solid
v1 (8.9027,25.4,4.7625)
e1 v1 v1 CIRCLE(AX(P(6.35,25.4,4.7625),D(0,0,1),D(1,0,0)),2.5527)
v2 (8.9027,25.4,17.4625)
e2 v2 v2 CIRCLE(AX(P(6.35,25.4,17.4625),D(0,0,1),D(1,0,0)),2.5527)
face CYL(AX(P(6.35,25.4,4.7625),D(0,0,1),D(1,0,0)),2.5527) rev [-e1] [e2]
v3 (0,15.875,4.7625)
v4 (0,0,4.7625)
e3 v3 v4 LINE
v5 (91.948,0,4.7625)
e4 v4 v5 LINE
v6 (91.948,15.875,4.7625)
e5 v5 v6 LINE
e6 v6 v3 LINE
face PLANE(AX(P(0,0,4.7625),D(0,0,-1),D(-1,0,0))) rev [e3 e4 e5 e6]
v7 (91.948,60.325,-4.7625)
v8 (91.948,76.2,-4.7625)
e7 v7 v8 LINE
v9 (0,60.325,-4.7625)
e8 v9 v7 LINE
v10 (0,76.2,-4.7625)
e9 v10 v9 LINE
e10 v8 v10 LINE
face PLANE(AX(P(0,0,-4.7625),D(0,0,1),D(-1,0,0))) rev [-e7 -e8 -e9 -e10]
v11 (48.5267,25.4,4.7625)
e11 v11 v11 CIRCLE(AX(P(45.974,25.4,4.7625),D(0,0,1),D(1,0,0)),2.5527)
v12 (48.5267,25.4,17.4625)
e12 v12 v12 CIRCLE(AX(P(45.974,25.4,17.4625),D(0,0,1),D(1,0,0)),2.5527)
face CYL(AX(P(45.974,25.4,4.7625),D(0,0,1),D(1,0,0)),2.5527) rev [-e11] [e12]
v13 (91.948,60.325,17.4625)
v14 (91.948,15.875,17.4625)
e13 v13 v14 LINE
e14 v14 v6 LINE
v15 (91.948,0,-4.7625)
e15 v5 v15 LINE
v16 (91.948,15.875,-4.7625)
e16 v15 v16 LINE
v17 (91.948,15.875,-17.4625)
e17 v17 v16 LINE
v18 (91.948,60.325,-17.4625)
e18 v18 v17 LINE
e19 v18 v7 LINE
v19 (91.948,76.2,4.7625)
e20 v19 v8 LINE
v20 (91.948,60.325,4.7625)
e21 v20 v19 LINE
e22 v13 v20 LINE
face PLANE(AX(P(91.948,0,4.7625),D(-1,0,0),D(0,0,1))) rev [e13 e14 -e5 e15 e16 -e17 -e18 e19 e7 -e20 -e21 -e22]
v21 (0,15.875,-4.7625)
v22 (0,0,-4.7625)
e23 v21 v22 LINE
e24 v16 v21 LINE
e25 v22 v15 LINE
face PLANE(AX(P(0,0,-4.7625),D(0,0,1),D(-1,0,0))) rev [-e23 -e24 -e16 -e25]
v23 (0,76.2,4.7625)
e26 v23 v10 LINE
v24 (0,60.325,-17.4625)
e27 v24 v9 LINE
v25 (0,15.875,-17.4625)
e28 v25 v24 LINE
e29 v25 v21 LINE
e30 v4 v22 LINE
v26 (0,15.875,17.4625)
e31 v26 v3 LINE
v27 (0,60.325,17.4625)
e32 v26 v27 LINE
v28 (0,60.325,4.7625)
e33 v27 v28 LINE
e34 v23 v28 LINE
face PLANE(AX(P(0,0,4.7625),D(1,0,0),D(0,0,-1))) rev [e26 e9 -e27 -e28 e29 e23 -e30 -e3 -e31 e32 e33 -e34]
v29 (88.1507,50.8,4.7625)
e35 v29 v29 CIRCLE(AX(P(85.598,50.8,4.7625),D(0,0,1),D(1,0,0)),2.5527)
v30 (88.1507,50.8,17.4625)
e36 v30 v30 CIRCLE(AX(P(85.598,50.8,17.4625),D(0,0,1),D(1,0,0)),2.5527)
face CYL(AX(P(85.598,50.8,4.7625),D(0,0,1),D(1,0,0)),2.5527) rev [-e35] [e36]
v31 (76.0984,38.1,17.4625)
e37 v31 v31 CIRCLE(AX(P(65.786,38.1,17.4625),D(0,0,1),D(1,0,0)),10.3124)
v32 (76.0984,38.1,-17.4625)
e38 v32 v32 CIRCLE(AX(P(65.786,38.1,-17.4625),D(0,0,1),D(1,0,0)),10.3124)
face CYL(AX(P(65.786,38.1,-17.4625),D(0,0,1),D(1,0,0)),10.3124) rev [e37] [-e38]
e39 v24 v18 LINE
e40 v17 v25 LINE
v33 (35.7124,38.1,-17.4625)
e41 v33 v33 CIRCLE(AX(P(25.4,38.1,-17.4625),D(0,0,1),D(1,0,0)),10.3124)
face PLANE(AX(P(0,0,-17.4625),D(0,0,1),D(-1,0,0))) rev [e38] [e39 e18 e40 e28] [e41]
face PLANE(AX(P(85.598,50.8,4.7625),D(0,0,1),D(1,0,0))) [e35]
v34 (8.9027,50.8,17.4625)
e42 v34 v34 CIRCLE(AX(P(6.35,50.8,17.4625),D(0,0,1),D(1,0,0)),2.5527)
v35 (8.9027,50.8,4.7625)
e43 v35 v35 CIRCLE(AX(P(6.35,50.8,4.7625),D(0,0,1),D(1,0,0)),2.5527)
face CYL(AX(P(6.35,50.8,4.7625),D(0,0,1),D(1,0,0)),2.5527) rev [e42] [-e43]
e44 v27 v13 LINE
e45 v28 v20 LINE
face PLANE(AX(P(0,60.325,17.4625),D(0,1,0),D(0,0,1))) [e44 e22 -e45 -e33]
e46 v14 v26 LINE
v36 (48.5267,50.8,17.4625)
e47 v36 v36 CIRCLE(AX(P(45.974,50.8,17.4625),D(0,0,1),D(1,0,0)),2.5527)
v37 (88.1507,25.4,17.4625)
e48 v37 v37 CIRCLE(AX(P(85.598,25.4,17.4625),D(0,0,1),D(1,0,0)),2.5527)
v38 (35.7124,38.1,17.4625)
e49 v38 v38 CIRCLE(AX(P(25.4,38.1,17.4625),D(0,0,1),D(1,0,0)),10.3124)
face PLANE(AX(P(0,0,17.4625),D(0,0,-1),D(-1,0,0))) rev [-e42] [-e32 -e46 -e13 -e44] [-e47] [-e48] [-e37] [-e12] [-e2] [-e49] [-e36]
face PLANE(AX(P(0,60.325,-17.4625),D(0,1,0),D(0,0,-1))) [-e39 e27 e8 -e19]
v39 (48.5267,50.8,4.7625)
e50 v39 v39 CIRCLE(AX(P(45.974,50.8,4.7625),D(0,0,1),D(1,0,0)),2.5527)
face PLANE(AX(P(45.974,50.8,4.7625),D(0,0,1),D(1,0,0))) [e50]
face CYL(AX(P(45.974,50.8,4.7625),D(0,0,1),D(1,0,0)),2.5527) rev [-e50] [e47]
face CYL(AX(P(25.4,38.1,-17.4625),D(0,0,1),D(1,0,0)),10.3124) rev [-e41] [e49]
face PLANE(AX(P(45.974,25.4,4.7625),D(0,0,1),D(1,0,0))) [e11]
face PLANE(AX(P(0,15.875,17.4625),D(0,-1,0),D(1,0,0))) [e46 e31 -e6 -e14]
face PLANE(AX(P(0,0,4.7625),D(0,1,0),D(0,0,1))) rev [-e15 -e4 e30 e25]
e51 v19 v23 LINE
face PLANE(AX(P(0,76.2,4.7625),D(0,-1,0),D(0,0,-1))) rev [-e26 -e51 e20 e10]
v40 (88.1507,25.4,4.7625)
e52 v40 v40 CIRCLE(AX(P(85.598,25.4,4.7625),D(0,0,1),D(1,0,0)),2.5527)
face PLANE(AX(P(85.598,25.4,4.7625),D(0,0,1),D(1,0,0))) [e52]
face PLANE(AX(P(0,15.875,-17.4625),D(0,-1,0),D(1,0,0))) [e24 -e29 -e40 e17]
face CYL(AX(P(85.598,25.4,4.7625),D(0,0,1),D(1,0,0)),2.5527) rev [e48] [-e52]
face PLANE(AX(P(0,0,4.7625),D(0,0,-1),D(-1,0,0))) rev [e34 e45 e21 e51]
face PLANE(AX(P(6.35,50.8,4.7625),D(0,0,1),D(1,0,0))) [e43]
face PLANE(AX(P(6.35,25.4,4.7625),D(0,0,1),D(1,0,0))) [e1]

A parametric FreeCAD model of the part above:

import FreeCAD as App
import Part
import Sketcher
from FreeCAD import Vector
Q = App.Units.Quantity


def add_polygon(sketch, points):
    """Adds a closed chain of lines whose ends are joined by coincident constraints."""
    first, n = sketch.GeometryCount, len(points)
    for a, b in zip(points, points[1:] + points[:1]):
        sketch.addGeometry(Part.LineSegment(App.Vector(*a, 0), App.Vector(*b, 0)), False)
    for i in range(n):
        sketch.addConstraint(Sketcher.Constraint("Coincident", first + i, 2, first + (i + 1) % n, 1))

doc = App.newDocument("Part")
body = doc.addObject("PartDesign::Body", "Body")

# Sketch on XY plane
sketch1 = body.newObject("Sketcher::SketchObject", "Sketch")
sketch1.AttachmentSupport = (doc.getObject("XY_Plane"), [""])
sketch1.MapMode = "FlatFace"
add_polygon(sketch1, [(0, 76), (0, 0), (92, 0), (92, 76)])  # lines 0-3
sketch1.addConstraint([
    Sketcher.Constraint("Vertical", 0),
    Sketcher.Constraint("Horizontal", 1),
    Sketcher.Constraint("Vertical", 2),
    Sketcher.Constraint("Horizontal", 3),
    Sketcher.Constraint("Coincident", 0, 2, -1, 1),
    Sketcher.Constraint("DistanceY", 0, 2, 0, 1, Q("3 in")),
    Sketcher.Constraint("DistanceX", 1, 1, 1, 2, Q("3.62 in")),
])
pad1 = body.newObject("PartDesign::Pad", "Pad")
pad1.Profile = sketch1
pad1.Length = Q("0.1875 in")

# Sketch on XY plane
sketch2 = body.newObject("Sketcher::SketchObject", "Sketch001")
sketch2.AttachmentSupport = (doc.getObject("XY_Plane"), [""])
sketch2.MapMode = "FlatFace"
sketch2.AttachmentOffset = App.Placement(Vector(0, 0, 0.1875 * 25.4), App.Rotation())
add_polygon(sketch2, [(92, 60), (92, 16), (0, 16), (0, 60)])  # lines 0-3
sketch2.addConstraint([
    Sketcher.Constraint("Vertical", 0),
    Sketcher.Constraint("Horizontal", 1),
    Sketcher.Constraint("Vertical", 2),
    Sketcher.Constraint("Horizontal", 3),
    Sketcher.Constraint("PointOnObject", 1, 2, -2),
    Sketcher.Constraint("DistanceX", 1, 2, 1, 1, Q("3.62 in")),
    Sketcher.Constraint("DistanceY", 0, 2, 0, 1, Q("1.75 in")),
    Sketcher.Constraint("DistanceY", -1, 1, 0, 2, Q("0.625 in")),
])
pad2 = body.newObject("PartDesign::Pad", "Pad001")
pad2.Profile = sketch2
pad2.Length = Q("0.5 in")
doc.recompute()

mirrored = body.newObject("PartDesign::Mirrored", "Mirrored")
mirrored.Originals = [pad1, pad2]
mirrored.MirrorPlane = (doc.getObject("XY_Plane"), [""])
body.Tip = mirrored

# Sketch on XY plane
sketch3 = body.newObject("Sketcher::SketchObject", "Sketch002")
sketch3.AttachmentSupport = (doc.getObject("XY_Plane"), [""])
sketch3.MapMode = "FlatFace"
sketch3.AttachmentOffset = App.Placement(Vector(0, 0, 0.6875 * 25.4), App.Rotation())
sketch3.addGeometry([
    Part.Circle(Vector(25, 38, 0), Vector(0, 0, 1), 10),
    Part.Circle(Vector(66, 38, 0), Vector(0, 0, 1), 10),
], False)
sketch3.addConstraint([
    Sketcher.Constraint("Equal", 0, 1),
    Sketcher.Constraint("Horizontal", 0, 3, 1, 3),
    Sketcher.Constraint("Diameter", 0, Q("0.812 in")),
    Sketcher.Constraint("DistanceX", -1, 1, 0, 3, Q("1 in")),
    Sketcher.Constraint("DistanceY", -1, 1, 0, 3, Q("1.5 in")),
    Sketcher.Constraint("DistanceX", -1, 1, 1, 3, Q("2.59 in")),
])
pocket1 = body.newObject("PartDesign::Pocket", "Pocket")
pocket1.Profile = sketch3
pocket1.Type = "ThroughAll"

# Sketch on XY plane
sketch4 = body.newObject("Sketcher::SketchObject", "Sketch003")
sketch4.AttachmentSupport = (doc.getObject("XY_Plane"), [""])
sketch4.MapMode = "FlatFace"
sketch4.AttachmentOffset = App.Placement(Vector(0, 0, 0.6875 * 25.4), App.Rotation())
sketch4.addGeometry([
    Part.Circle(Vector(6.3, 50.8, 0), Vector(0, 0, 1), 2.6),  # 0
    Part.Circle(Vector(6.3, 25.4, 0), Vector(0, 0, 1), 2.6),  # 1
    Part.Circle(Vector(46, 25.4, 0), Vector(0, 0, 1), 2.6),  # 2
    Part.Circle(Vector(46, 50.8, 0), Vector(0, 0, 1), 2.6),  # 3
    Part.Circle(Vector(85.6, 50.8, 0), Vector(0, 0, 1), 2.6),  # 4
    Part.Circle(Vector(85.6, 25.4, 0), Vector(0, 0, 1), 2.6),  # 5
], False)
sketch4.addConstraint([
    Sketcher.Constraint("Equal", 0, 1),
    Sketcher.Constraint("Equal", 1, 2),
    Sketcher.Constraint("Equal", 2, 3),
    Sketcher.Constraint("Equal", 3, 4),
    Sketcher.Constraint("Equal", 4, 5),
    Sketcher.Constraint("Horizontal", 1, 3, 2, 3),
    Sketcher.Constraint("Horizontal", 0, 3, 3, 3),
    Sketcher.Constraint("Horizontal", 3, 3, 4, 3),
    Sketcher.Constraint("Horizontal", 2, 3, 5, 3),
    Sketcher.Constraint("Vertical", 0, 3, 1, 3),
    Sketcher.Constraint("Vertical", 2, 3, 3, 3),
    Sketcher.Constraint("Vertical", 4, 3, 5, 3),
    Sketcher.Constraint("Diameter", 0, Q("0.201 in")),
    Sketcher.Constraint("DistanceY", -1, 1, 0, 3, Q("2 in")),
    Sketcher.Constraint("DistanceY", -1, 1, 1, 3, Q("1 in")),
    Sketcher.Constraint("DistanceX", -1, 1, 0, 3, Q("0.25 in")),
    Sketcher.Constraint("DistanceX", -1, 1, 2, 3, Q("1.81 in")),
    Sketcher.Constraint("DistanceX", -1, 1, 4, 3, Q("3.37 in")),
])
pocket2 = body.newObject("PartDesign::Pocket", "Pocket001")
pocket2.Profile = sketch4
pocket2.Length = Q("0.5 in")

doc.recompute()
